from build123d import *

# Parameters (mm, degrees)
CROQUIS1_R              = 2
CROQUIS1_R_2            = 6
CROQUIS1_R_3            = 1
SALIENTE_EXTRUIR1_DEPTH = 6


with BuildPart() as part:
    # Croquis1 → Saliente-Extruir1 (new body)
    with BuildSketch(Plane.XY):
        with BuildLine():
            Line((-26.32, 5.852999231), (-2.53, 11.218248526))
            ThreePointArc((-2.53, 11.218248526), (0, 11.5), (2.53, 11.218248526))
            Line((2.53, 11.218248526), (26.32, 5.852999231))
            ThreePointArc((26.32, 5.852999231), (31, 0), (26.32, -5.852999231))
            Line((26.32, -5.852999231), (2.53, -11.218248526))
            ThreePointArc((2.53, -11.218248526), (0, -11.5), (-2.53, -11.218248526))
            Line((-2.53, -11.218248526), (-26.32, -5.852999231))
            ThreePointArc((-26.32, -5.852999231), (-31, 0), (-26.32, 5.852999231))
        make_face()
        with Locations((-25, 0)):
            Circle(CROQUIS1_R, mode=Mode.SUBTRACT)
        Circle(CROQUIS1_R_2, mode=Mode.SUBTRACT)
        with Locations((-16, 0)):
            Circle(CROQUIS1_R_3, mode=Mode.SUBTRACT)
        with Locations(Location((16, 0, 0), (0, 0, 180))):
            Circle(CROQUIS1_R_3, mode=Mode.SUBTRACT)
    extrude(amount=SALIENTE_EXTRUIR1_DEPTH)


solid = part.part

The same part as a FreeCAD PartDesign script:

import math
import FreeCAD as App
import Part
import Sketcher

V = App.Vector

doc = App.newDocument("Part")
body = doc.addObject("PartDesign::Body", "Body")

sketch1 = body.newObject("Sketcher::SketchObject", "Sketch")
sketch1.AttachmentSupport = (doc.getObject("XY_Plane"), [""])
sketch1.MapMode = "FlatFace"
sketch1.addGeometry(Part.LineSegment(V(-2.5, 11.2, 0), V(-26.3, 5.9, 0)), False)
sketch1.addGeometry(Part.ArcOfCircle(Part.Circle(V(-25, 0, 0), V(0, 0, 1), 6), math.radians(103), math.radians(257)), False)
sketch1.addGeometry(Part.LineSegment(V(-26.3, -5.9, 0), V(-2.5, -11.2, 0)), False)
sketch1.addGeometry(Part.ArcOfCircle(Part.Circle(V(0, 0, 0), V(0, 0, 1), 11.5), math.radians(-103), math.radians(-77)), False)
sketch1.addGeometry(Part.LineSegment(V(2.5, -11.2, 0), V(26.3, -5.9, 0)), False)
sketch1.addGeometry(Part.ArcOfCircle(Part.Circle(V(25, 0, 0), V(0, 0, 1), 6), math.radians(-77), math.radians(77)), False)
sketch1.addGeometry(Part.LineSegment(V(26.3, 5.9, 0), V(2.5, 11.2, 0)), False)
sketch1.addGeometry(Part.ArcOfCircle(Part.Circle(V(0, 0, 0), V(0, 0, 1), 11.5), math.radians(77), math.radians(103)), False)
sketch1.addGeometry(Part.Circle(V(16, 0, 0), V(0, 0, 1), 1), False)
sketch1.addGeometry(Part.Circle(V(0, 0, 0), V(0, 0, 1), 6), False)
sketch1.addGeometry(Part.Circle(V(-16, 0, 0), V(0, 0, 1), 1), False)
sketch1.addGeometry(Part.Circle(V(-25, 0, 0), V(0, 0, 1), 2), False)
sketch1.addConstraint(Sketcher.Constraint("Tangent", 0, 2, 1, 1))
sketch1.addConstraint(Sketcher.Constraint("Tangent", 1, 2, 2, 1))
sketch1.addConstraint(Sketcher.Constraint("Tangent", 2, 2, 3, 1))
sketch1.addConstraint(Sketcher.Constraint("Tangent", 3, 2, 4, 1))
sketch1.addConstraint(Sketcher.Constraint("Tangent", 4, 2, 5, 1))
sketch1.addConstraint(Sketcher.Constraint("Tangent", 5, 2, 6, 1))
sketch1.addConstraint(Sketcher.Constraint("Tangent", 6, 2, 7, 1))
sketch1.addConstraint(Sketcher.Constraint("Tangent", 7, 2, 0, 1))
sketch1.addConstraint(Sketcher.Constraint("Coincident", 3, 3, -1, 1))
sketch1.addConstraint(Sketcher.Constraint("Coincident", 7, 3, -1, 1))
sketch1.addConstraint(Sketcher.Constraint("Coincident", 9, 3, -1, 1))
sketch1.addConstraint(Sketcher.Constraint("Coincident", 11, 3, 1, 3))
sketch1.addConstraint(Sketcher.Constraint("Equal", 1, 5))
sketch1.addConstraint(Sketcher.Constraint("Equal", 3, 7))
sketch1.addConstraint(Sketcher.Constraint("Equal", 5, 9))
sketch1.addConstraint(Sketcher.Constraint("Equal", 8, 10))
sketch1.addConstraint(Sketcher.Constraint("Symmetric", 1, 3, 5, 3, -1, 1))
sketch1.addConstraint(Sketcher.Constraint("Symmetric", 8, 3, 10, 3, -1, 1))
sketch1.addConstraint(Sketcher.Constraint("PointOnObject", 1, 3, -1))
sketch1.addConstraint(Sketcher.Constraint("PointOnObject", 8, 3, -1))
sketch1.addConstraint(Sketcher.Constraint("Diameter", 8, 2.0))
sketch1.addConstraint(Sketcher.Constraint("Diameter", 9, 12.0))
sketch1.addConstraint(Sketcher.Constraint("Diameter", 11, 4.0))
sketch1.addConstraint(Sketcher.Constraint("Radius", 3, 11.5))
sketch1.addConstraint(Sketcher.Constraint("DistanceX", 1, 3, -1, 1, 25.0))
sketch1.addConstraint(Sketcher.Constraint("DistanceX", -1, 1, 8, 3, 16.0))
pad1 = body.newObject("PartDesign::Pad", "Pad")
pad1.Profile = sketch1
pad1.Length = 6

doc.recompute()
